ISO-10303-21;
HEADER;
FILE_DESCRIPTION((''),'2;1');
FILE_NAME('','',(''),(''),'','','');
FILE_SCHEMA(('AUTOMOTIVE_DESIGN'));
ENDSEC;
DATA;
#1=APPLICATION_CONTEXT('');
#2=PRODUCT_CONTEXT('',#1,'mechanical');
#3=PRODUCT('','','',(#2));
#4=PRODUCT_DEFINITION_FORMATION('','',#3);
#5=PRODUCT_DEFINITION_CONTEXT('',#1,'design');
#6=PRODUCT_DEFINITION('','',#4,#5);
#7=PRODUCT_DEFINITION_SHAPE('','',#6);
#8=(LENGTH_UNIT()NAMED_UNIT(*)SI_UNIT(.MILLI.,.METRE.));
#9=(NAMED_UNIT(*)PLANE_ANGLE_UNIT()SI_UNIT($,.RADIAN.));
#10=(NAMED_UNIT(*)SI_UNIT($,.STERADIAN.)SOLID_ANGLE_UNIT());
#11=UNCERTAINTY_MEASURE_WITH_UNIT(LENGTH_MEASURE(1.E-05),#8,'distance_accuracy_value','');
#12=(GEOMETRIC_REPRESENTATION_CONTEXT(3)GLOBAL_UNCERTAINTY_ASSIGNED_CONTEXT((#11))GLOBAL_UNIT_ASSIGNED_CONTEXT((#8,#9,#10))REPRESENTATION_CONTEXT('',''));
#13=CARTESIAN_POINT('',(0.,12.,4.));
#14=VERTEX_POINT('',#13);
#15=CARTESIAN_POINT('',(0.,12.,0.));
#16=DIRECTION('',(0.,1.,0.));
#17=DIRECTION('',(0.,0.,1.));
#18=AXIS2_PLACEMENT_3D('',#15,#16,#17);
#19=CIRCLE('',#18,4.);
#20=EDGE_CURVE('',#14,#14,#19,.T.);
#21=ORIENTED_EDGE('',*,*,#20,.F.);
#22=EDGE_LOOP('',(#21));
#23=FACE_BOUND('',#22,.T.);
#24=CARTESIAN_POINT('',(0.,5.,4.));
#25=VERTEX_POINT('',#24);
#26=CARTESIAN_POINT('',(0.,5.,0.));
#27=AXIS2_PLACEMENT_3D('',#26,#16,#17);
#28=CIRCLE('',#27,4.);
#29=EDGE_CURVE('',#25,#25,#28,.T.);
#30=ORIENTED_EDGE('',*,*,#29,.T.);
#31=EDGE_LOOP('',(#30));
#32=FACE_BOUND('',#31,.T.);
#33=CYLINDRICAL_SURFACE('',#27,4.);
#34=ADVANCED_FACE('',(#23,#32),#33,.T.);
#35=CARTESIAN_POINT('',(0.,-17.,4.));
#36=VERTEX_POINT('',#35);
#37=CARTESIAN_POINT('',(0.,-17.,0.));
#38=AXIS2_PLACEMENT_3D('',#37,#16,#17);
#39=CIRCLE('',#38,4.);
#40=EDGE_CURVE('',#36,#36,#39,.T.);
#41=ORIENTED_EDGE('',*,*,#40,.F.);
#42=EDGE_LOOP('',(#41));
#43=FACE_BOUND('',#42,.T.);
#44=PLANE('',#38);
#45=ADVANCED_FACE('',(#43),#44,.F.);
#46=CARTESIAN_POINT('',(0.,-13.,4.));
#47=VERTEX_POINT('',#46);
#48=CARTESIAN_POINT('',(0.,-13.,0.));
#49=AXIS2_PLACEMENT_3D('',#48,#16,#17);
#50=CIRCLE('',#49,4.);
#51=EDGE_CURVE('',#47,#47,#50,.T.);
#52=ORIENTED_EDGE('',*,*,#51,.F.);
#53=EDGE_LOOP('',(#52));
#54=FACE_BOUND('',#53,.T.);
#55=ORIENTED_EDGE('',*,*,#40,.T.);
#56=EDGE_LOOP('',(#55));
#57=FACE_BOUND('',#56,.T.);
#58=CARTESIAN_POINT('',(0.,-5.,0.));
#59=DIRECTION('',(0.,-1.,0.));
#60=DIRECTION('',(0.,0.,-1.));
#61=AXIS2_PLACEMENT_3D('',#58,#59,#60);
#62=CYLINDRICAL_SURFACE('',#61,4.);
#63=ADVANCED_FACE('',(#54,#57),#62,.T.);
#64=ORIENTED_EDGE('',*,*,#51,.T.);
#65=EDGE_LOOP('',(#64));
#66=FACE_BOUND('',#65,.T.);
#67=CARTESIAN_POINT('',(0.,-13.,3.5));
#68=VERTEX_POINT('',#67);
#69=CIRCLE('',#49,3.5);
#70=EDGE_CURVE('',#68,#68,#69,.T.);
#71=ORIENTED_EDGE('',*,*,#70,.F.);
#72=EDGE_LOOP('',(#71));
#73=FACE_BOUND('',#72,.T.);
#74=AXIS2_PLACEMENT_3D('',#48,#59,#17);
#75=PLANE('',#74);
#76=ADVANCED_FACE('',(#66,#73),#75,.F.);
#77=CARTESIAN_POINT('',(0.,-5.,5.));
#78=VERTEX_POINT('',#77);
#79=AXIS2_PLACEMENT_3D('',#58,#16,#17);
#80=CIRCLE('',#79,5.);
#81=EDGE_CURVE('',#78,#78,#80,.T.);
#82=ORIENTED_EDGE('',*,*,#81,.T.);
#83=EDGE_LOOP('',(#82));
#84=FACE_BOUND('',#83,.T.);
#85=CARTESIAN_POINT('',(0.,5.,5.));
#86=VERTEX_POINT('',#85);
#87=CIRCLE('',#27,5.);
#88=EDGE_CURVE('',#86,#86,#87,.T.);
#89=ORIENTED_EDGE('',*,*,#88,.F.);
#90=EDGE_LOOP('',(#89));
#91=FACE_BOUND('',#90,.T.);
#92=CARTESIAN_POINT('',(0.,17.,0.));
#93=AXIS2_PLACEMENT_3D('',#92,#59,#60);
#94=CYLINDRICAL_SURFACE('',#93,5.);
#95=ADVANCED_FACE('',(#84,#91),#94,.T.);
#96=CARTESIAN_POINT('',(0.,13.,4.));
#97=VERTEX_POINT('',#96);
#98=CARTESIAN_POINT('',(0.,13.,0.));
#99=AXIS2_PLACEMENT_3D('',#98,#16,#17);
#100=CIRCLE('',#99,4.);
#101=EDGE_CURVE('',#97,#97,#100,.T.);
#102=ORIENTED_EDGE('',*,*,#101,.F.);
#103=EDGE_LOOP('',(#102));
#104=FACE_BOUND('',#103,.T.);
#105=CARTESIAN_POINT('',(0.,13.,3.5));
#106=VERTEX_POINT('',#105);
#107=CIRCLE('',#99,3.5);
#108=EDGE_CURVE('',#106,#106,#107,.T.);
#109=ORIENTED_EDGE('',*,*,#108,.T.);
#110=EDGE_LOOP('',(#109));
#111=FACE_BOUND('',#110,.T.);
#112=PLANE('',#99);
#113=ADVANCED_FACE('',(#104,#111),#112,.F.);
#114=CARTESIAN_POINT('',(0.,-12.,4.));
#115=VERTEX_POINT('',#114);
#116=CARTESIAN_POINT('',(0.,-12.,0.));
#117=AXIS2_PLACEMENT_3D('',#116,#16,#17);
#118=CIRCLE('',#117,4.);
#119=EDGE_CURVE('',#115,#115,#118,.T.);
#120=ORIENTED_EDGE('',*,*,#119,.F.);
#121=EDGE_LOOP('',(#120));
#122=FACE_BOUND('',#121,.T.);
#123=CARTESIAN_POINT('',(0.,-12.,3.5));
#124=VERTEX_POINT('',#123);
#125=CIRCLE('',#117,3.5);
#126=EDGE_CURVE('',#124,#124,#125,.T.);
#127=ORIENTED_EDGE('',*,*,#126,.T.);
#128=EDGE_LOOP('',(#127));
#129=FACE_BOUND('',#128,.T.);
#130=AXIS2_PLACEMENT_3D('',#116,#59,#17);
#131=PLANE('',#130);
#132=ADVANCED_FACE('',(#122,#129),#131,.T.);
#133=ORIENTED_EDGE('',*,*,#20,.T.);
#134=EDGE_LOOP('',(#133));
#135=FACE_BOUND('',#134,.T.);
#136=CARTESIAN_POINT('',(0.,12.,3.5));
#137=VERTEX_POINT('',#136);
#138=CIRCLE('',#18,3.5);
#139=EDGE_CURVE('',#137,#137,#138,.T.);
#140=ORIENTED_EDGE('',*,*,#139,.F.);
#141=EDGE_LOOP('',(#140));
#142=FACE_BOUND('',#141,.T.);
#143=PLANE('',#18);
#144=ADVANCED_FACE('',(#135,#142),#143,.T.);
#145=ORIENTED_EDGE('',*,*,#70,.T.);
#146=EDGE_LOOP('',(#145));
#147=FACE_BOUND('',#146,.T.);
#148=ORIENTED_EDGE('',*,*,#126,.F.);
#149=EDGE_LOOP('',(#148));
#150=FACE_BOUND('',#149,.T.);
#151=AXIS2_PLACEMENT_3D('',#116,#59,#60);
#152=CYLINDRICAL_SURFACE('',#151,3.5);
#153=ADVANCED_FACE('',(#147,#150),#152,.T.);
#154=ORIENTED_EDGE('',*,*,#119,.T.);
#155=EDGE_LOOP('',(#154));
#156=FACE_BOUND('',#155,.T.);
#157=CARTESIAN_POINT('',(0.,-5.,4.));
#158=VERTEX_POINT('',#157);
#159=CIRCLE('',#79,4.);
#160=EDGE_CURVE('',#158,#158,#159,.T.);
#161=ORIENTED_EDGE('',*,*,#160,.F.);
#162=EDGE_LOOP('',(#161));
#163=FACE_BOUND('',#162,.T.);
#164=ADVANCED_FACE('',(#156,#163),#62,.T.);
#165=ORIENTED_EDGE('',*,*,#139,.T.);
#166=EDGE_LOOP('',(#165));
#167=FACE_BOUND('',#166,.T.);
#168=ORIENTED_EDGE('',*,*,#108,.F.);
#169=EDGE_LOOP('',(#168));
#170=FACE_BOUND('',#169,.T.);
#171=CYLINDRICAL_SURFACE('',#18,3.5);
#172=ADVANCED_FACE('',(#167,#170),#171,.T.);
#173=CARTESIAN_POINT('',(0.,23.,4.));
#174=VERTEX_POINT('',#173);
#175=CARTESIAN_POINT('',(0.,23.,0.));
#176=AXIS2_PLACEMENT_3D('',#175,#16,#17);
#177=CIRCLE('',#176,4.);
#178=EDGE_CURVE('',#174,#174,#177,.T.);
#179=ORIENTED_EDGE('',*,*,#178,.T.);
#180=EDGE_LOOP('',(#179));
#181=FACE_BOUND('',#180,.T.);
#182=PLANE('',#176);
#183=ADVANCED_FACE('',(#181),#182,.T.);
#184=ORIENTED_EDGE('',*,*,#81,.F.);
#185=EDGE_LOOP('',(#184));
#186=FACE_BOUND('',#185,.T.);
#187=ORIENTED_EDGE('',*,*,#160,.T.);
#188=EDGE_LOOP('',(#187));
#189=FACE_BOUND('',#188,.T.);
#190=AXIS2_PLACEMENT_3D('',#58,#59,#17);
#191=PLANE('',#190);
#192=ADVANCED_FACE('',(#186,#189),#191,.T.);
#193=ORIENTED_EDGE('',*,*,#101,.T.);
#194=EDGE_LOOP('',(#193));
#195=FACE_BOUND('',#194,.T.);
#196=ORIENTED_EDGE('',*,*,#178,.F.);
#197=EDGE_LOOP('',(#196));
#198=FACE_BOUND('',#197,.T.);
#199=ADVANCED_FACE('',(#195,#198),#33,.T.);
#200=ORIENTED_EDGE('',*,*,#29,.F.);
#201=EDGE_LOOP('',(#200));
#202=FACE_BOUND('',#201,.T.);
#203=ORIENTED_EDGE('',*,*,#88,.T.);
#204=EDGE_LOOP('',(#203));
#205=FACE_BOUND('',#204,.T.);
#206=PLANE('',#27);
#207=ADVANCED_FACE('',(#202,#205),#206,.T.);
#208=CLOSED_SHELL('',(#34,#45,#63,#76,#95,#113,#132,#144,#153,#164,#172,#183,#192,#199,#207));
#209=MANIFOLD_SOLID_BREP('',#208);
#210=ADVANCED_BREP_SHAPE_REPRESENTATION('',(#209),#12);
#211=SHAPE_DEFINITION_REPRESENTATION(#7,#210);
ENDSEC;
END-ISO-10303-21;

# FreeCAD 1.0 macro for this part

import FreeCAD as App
import Part
import Sketcher
from FreeCAD import Vector

doc = App.newDocument("Part")
body = doc.addObject("PartDesign::Body", "Body")

# Sketch on XZ plane
sketch1 = body.newObject("Sketcher::SketchObject", "Sketch")
sketch1.AttachmentSupport = (doc.getObject("XZ_Plane"), [""])
sketch1.MapMode = "FlatFace"
sketch1.addGeometry(Part.Circle(Vector(0, 0, 0), Vector(0, 0, 1), 5), False)
sketch1.addConstraint(Sketcher.Constraint("Coincident", 0, 3, -1, 1))
sketch1.addConstraint(Sketcher.Constraint("Diameter", 0, 10.0))
pad1 = body.newObject("PartDesign::Pad", "Pad")
pad1.Profile = sketch1
pad1.Length = 34
pad1.Midplane = True

# Sketch on XZ plane
sketch2 = body.newObject("Sketcher::SketchObject", "Sketch001")
sketch2.AttachmentSupport = (doc.getObject("XZ_Plane"), [""])
sketch2.MapMode = "FlatFace"
sketch2.AttachmentOffset = App.Placement(Vector(0, 0, -17), App.Rotation())
sketch2.addGeometry(Part.Circle(Vector(0, 0, 0), Vector(0, 0, 1), 5), False)
sketch2.addGeometry(Part.Circle(Vector(0, 0, 0), Vector(0, 0, 1), 4), False)
sketch2.addConstraint(Sketcher.Constraint("Coincident", 0, 3, -1, 1))
sketch2.addConstraint(Sketcher.Constraint("Coincident", 1, 3, -1, 1))
sketch2.addConstraint(Sketcher.Constraint("Diameter", 0, 10.0))
sketch2.addConstraint(Sketcher.Constraint("Diameter", 1, 8.0))
pocket1 = body.newObject("PartDesign::Pocket", "Pocket")
pocket1.Profile = sketch2
pocket1.Length = 12
pocket1.Reversed = True
doc.recompute()

mirrored = body.newObject("PartDesign::Mirrored", "Mirrored")
mirrored.Originals = [pocket1]
mirrored.MirrorPlane = (doc.getObject("XZ_Plane"), [""])
body.Tip = mirrored

# Sketch on XZ plane
sketch3 = body.newObject("Sketcher::SketchObject", "Sketch002")
sketch3.AttachmentSupport = (doc.getObject("XZ_Plane"), [""])
sketch3.MapMode = "FlatFace"
sketch3.AttachmentOffset = App.Placement(Vector(0, 0, -13), App.Rotation())
sketch3.addGeometry(Part.Circle(Vector(0, 0, 0), Vector(0, 0, 1), 4), False)
sketch3.addGeometry(Part.Circle(Vector(0, 0, 0), Vector(0, 0, 1), 3.5), False)
sketch3.addConstraint(Sketcher.Constraint("Coincident", 0, 3, -1, 1))
sketch3.addConstraint(Sketcher.Constraint("Coincident", 1, 3, -1, 1))
sketch3.addConstraint(Sketcher.Constraint("Diameter", 0, 8.0))
sketch3.addConstraint(Sketcher.Constraint("Diameter", 1, 7.0))
pocket2 = body.newObject("PartDesign::Pocket", "Pocket001")
pocket2.Profile = sketch3
pocket2.Length = 1
pocket2.Reversed = True
doc.recompute()

mirrored2 = body.newObject("PartDesign::Mirrored", "Mirrored001")
mirrored2.Originals = [pocket2]
mirrored2.MirrorPlane = (doc.getObject("XZ_Plane"), [""])
body.Tip = mirrored2

# Sketch on XZ plane
sketch4 = body.newObject("Sketcher::SketchObject", "Sketch003")
sketch4.AttachmentSupport = (doc.getObject("XZ_Plane"), [""])
sketch4.MapMode = "FlatFace"
sketch4.AttachmentOffset = App.Placement(Vector(0, 0, -17), App.Rotation())
sketch4.addGeometry(Part.Circle(Vector(0, 0, 0), Vector(0, 0, 1), 4), False)
sketch4.addConstraint(Sketcher.Constraint("Coincident", 0, 3, -1, 1))
sketch4.addConstraint(Sketcher.Constraint("Diameter", 0, 8.0))
pad2 = body.newObject("PartDesign::Pad", "Pad001")
pad2.Profile = sketch4
pad2.Length = 6
pad2.Reversed = True

doc.recompute()
